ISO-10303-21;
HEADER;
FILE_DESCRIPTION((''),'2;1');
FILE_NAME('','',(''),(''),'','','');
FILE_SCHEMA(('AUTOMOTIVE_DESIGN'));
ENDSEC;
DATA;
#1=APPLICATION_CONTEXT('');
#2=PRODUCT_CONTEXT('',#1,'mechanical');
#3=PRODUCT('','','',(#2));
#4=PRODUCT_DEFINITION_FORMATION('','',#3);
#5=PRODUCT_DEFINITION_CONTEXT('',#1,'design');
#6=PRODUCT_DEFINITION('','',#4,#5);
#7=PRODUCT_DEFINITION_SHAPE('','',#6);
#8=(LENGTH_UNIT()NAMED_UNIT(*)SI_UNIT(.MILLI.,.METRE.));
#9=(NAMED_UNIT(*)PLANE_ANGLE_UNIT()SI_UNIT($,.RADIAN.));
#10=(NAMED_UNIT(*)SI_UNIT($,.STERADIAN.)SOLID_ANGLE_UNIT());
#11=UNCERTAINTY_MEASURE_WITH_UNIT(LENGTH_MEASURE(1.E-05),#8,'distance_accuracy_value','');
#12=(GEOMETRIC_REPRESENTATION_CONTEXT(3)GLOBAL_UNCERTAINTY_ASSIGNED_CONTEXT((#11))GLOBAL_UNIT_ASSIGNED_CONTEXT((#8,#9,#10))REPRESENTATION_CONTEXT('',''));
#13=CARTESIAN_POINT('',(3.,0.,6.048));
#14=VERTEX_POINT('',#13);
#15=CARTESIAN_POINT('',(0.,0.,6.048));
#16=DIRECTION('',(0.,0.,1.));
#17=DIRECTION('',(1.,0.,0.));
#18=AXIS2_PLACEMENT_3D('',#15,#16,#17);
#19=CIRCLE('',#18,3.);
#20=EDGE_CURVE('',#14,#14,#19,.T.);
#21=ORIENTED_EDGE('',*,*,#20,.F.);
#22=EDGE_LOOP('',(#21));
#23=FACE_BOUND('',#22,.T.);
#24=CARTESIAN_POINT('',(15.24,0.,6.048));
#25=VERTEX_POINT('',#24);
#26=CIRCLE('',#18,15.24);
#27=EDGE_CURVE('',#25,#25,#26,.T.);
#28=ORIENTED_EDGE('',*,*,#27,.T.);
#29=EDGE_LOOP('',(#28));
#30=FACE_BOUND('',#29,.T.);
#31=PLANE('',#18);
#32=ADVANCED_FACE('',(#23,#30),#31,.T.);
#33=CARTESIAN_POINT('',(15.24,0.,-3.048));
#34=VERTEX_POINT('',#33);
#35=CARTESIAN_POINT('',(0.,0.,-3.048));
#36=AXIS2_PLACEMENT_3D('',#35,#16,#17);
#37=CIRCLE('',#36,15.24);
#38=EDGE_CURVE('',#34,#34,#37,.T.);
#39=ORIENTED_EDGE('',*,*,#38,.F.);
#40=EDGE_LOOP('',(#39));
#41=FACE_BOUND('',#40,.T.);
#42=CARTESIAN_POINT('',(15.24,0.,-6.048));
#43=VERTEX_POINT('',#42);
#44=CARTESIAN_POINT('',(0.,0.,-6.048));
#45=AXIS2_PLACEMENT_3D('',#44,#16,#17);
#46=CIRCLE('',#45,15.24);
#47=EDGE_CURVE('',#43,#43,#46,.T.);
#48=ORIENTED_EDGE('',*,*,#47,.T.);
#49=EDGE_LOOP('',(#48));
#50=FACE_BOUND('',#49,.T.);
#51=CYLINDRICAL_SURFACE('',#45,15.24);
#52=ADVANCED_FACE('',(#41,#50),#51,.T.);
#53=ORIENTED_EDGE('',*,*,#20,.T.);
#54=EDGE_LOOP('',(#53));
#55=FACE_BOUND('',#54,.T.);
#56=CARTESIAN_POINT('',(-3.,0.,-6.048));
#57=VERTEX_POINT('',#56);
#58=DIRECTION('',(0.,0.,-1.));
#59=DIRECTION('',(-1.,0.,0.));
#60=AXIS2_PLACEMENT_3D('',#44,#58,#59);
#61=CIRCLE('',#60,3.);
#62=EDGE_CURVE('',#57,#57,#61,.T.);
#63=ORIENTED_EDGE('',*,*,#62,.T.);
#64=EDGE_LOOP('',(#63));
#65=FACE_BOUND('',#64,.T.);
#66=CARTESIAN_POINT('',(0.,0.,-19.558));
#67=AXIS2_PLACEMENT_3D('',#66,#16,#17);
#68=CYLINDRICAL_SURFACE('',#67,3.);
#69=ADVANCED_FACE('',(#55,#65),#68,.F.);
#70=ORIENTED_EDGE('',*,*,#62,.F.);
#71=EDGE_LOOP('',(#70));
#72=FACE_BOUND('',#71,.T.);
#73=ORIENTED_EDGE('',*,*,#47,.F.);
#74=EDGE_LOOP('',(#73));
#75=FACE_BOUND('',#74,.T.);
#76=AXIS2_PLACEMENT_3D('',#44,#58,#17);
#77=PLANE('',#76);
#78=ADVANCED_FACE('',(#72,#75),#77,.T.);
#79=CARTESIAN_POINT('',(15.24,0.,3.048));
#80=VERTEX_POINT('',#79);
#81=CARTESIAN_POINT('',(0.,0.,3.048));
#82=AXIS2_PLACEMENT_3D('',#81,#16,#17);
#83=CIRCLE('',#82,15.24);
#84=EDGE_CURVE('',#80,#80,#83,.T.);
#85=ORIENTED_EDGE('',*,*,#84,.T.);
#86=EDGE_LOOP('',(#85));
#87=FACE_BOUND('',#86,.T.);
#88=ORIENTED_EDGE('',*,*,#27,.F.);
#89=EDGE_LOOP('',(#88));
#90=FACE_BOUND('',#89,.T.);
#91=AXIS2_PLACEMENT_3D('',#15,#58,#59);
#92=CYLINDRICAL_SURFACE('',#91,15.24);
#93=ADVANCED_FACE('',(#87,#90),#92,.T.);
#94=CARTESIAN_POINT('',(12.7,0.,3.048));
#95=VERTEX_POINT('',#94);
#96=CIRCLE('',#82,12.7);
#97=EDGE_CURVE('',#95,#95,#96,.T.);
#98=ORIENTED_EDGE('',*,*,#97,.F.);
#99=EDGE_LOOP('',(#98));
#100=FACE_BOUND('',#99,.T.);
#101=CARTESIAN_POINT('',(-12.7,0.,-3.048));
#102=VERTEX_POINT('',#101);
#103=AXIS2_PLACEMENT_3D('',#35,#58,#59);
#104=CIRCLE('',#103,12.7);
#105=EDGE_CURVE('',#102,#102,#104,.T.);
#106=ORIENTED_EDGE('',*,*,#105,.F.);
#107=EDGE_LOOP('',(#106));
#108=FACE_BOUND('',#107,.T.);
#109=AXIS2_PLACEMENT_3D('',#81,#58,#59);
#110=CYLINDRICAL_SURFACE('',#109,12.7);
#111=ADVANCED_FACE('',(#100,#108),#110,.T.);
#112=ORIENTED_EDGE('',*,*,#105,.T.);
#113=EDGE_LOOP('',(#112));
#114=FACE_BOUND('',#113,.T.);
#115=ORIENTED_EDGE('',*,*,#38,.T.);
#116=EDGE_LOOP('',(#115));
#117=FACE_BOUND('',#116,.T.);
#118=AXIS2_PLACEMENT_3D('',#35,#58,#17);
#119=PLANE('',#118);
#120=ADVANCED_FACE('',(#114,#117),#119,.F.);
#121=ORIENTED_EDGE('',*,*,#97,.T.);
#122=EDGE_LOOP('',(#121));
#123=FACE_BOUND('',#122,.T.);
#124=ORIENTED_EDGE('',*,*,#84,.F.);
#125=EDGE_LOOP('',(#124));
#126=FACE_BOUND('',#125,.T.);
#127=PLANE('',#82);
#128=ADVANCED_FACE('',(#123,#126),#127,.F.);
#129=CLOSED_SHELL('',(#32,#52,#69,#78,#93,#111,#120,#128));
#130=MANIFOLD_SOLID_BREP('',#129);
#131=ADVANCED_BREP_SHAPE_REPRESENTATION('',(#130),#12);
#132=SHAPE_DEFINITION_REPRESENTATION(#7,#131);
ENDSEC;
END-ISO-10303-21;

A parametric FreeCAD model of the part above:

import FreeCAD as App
import Part
import Sketcher

V = App.Vector
Q = App.Units.Quantity

doc = App.newDocument("Part")
body = doc.addObject("PartDesign::Body", "Body")

# Sketch on XY plane
sketch1 = doc.addObject("Sketcher::SketchObject", "Sketch")
body.addObject(sketch1)
sketch1.AttachmentSupport = (doc.XY_Plane, [""])
sketch1.MapMode = "FlatFace"
sketch1.addGeometry(Part.Circle(V(0, 0, 0), V(0, 0, 1), 12.7), False)
sketch1.addConstraint([
    Sketcher.Constraint("Coincident", 0, 3, -1, 1),
    Sketcher.Constraint("Diameter", 0, Q("1 in")),
])
pad1 = doc.addObject("PartDesign::Pad", "Pad")
body.addObject(pad1)
pad1.Profile = sketch1
pad1.Length = Q("0.24 in")
pad1.Midplane = True

# Sketch on XY plane
sketch2 = doc.addObject("Sketcher::SketchObject", "Sketch001")
body.addObject(sketch2)
sketch2.AttachmentSupport = (doc.XY_Plane, [""])
sketch2.MapMode = "FlatFace"
sketch2.AttachmentOffset = App.Placement(V(0, 0, 0.12 * 25.4), App.Rotation())
sketch2.addGeometry(Part.Circle(V(0, 0, 0), V(0, 0, 1), 15.24), False)
sketch2.addConstraint([
    Sketcher.Constraint("Coincident", 0, 3, -1, 1),
    Sketcher.Constraint("Diameter", 0, Q("1.2 in")),
])
pad2 = doc.addObject("PartDesign::Pad", "Pad001")
body.addObject(pad2)
pad2.Profile = sketch2
pad2.Length = 3
doc.recompute()

mirrored = doc.addObject("PartDesign::Mirrored", "Mirrored")
body.addObject(mirrored)
mirrored.Originals = [pad2]
mirrored.MirrorPlane = (doc.XY_Plane, [""])
body.Tip = mirrored

# Sketch on XY plane
sketch3 = doc.addObject("Sketcher::SketchObject", "Sketch002")
body.addObject(sketch3)
sketch3.AttachmentSupport = (doc.XY_Plane, [""])
sketch3.MapMode = "FlatFace"
sketch3.AttachmentOffset = App.Placement(V(0, 0, 6.048), App.Rotation())
sketch3.addGeometry(Part.Circle(V(0, 0, 0), V(0, 0, 1), 3), False)
sketch3.addConstraint([
    Sketcher.Constraint("Coincident", 0, 3, -1, 1),
    Sketcher.Constraint("Diameter", 0, 6.0),
])
pocket1 = doc.addObject("PartDesign::Pocket", "Pocket")
body.addObject(pocket1)
pocket1.Profile = sketch3
pocket1.Length = 25.606

doc.recompute()
